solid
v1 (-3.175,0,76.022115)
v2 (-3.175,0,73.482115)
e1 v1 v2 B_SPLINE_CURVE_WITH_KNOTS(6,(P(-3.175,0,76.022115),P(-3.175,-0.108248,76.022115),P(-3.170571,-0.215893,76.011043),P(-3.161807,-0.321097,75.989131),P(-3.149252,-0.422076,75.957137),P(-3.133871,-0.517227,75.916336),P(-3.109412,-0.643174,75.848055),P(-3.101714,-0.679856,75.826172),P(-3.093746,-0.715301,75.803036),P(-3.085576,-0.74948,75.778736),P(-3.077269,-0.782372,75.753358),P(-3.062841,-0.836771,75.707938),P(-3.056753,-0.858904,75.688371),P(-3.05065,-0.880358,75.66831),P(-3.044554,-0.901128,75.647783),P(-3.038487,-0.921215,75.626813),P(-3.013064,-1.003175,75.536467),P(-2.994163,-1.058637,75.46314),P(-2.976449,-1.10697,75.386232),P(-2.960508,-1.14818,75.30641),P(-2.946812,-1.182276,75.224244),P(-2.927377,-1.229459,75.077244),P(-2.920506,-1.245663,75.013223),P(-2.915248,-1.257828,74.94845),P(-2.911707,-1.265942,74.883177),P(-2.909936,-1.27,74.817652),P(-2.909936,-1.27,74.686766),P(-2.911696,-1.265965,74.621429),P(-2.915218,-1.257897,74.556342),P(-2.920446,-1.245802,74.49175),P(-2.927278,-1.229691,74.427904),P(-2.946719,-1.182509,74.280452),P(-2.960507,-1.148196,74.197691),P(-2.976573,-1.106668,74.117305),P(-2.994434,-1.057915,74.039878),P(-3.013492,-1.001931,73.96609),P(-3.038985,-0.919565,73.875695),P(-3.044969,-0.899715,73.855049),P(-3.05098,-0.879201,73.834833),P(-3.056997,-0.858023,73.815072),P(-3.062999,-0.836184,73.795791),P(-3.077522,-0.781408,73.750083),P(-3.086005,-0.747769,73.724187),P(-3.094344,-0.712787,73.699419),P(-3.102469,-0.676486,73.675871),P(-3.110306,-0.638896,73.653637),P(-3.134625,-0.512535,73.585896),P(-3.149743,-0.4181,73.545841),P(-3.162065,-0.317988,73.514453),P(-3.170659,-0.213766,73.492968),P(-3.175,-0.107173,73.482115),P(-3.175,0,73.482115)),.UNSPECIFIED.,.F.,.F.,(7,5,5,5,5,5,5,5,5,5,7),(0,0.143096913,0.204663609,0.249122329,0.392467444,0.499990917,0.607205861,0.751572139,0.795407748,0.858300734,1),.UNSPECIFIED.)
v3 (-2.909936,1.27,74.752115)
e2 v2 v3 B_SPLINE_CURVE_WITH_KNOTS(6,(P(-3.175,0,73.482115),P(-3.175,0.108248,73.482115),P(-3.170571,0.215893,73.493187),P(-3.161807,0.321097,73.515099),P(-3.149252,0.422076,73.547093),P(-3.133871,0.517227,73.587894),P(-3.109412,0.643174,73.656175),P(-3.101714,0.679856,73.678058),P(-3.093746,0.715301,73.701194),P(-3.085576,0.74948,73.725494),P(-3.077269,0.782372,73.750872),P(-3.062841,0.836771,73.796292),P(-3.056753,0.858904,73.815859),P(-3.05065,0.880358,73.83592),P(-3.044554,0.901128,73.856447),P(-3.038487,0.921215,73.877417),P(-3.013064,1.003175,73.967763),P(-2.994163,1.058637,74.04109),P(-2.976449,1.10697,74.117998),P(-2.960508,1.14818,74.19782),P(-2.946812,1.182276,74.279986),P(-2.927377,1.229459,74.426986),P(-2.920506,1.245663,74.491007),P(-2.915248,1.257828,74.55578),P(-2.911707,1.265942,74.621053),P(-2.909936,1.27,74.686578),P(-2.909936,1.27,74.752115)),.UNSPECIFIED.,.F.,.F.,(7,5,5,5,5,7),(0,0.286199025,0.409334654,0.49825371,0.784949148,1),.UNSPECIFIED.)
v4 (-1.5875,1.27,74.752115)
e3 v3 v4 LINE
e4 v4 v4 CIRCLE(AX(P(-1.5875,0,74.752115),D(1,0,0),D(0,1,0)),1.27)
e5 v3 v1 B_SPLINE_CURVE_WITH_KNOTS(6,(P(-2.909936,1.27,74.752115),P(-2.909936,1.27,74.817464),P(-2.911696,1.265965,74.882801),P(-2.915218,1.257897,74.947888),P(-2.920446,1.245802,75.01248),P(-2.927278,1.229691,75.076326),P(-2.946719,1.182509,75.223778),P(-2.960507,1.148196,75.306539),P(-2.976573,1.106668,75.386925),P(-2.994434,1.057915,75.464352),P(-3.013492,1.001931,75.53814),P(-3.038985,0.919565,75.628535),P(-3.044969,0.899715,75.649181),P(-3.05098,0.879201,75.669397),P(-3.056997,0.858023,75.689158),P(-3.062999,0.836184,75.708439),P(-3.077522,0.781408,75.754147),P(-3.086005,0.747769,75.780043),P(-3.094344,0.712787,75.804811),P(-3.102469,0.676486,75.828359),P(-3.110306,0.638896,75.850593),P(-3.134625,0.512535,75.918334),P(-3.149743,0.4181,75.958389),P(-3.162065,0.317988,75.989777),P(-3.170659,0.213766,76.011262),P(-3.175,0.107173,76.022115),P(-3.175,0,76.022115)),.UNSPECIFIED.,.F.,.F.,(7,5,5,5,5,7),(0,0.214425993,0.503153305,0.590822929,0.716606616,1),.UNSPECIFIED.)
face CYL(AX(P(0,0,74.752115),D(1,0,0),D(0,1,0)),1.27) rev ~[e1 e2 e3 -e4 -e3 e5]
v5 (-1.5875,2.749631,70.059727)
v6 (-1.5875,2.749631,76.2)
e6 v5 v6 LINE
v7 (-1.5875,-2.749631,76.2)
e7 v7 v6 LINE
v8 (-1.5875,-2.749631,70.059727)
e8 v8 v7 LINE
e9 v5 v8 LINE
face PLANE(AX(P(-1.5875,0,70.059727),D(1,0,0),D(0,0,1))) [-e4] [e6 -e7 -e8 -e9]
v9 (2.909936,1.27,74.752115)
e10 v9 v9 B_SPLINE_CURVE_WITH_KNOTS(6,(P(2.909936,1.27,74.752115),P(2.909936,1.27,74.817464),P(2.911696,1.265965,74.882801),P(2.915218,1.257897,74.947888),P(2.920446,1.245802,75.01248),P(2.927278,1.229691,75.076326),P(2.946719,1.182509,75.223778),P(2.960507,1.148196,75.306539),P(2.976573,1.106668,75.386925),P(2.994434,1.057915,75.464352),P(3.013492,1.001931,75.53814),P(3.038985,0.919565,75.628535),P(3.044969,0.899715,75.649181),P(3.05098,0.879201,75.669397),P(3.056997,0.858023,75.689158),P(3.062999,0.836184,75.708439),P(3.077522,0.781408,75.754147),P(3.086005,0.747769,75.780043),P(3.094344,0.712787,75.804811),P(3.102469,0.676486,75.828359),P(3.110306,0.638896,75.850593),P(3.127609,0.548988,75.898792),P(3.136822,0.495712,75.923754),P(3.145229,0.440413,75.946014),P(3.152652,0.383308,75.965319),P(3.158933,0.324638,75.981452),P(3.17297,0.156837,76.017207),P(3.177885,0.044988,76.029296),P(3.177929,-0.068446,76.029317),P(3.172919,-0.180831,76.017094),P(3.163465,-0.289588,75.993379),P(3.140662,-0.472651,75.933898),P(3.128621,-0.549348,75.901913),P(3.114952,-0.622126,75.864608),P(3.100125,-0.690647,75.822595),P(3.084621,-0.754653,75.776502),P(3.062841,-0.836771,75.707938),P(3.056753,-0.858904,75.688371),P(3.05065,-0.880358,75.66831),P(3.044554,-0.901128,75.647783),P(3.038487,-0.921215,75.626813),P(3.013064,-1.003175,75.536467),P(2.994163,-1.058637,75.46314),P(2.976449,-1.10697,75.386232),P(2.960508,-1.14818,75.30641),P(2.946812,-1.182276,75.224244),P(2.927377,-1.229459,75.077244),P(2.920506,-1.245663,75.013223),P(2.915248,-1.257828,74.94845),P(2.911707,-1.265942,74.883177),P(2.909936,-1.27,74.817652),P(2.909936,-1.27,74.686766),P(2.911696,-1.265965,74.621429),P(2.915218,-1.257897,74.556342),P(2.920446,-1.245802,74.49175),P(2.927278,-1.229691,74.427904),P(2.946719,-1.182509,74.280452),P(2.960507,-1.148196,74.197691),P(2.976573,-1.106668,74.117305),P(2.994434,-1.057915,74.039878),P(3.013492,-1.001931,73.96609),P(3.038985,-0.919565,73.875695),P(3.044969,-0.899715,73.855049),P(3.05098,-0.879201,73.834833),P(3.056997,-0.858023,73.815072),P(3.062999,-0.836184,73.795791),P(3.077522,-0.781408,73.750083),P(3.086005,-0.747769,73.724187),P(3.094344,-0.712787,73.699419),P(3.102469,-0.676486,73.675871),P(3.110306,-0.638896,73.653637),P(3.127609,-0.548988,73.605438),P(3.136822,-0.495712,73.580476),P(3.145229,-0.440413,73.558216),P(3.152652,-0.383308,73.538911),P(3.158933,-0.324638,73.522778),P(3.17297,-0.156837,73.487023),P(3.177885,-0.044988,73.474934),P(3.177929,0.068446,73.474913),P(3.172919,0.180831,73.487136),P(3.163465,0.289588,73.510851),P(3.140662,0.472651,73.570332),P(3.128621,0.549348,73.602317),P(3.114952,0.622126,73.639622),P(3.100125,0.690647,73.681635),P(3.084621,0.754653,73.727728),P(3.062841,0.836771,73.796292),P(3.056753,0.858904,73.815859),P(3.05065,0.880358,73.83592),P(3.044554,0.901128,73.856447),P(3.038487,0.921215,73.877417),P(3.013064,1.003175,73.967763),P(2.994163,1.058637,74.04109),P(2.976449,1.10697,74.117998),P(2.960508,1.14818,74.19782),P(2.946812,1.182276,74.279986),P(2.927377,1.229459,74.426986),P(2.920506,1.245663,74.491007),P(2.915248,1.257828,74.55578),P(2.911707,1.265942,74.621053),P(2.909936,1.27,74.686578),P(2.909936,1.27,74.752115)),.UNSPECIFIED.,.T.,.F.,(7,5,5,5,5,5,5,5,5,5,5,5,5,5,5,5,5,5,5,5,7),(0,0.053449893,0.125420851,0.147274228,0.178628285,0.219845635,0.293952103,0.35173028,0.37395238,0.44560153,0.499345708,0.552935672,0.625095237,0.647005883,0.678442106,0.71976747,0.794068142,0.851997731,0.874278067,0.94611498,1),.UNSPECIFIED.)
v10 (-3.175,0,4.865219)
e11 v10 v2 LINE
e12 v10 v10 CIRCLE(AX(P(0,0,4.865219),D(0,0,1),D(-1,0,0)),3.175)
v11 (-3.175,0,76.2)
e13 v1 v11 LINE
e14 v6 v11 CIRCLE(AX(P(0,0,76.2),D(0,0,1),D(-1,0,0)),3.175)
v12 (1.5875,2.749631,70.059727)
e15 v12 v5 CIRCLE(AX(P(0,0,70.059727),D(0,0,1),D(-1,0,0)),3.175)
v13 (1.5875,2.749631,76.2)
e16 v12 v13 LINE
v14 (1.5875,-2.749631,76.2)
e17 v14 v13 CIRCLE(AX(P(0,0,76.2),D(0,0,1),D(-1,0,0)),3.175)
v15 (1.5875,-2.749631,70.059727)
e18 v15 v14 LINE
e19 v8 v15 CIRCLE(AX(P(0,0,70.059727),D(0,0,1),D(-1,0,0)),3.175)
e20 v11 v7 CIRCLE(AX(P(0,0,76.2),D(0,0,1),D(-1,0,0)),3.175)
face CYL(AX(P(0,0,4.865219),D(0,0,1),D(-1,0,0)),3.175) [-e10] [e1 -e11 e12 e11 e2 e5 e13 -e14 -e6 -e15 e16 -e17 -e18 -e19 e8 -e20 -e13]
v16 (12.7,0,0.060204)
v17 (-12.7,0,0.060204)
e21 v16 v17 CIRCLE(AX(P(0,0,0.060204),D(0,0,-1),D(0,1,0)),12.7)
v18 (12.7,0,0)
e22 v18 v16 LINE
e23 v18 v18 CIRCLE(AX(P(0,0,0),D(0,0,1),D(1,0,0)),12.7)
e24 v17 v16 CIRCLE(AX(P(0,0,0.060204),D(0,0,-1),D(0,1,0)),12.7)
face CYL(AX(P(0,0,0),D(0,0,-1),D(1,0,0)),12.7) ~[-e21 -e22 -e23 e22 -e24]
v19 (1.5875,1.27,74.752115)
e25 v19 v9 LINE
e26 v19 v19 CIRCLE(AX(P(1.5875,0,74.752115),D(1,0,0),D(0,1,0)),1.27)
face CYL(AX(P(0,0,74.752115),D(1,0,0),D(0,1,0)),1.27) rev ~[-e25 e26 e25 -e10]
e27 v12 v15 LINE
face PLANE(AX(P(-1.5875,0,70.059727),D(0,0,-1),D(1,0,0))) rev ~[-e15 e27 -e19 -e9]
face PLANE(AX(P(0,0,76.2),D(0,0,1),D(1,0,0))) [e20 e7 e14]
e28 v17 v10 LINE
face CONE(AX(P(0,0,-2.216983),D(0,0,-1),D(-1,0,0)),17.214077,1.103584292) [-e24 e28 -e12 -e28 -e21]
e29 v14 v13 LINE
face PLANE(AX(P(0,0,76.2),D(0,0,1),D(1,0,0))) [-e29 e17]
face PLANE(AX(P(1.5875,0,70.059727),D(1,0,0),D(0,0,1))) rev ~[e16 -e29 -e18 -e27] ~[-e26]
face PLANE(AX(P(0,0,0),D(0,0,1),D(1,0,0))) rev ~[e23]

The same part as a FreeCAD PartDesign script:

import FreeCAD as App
import Part
import Sketcher
Q = App.Units.Quantity


def add_polygon(sketch, points):
    """Adds a closed chain of lines whose ends are joined by coincident constraints."""
    first, n = sketch.GeometryCount, len(points)
    for a, b in zip(points, points[1:] + points[:1]):
        sketch.addGeometry(Part.LineSegment(App.Vector(*a, 0), App.Vector(*b, 0)), False)
    for i in range(n):
        sketch.addConstraint(Sketcher.Constraint("Coincident", first + i, 2, first + (i + 1) % n, 1))

doc = App.newDocument("Part")
body = doc.addObject("PartDesign::Body", "Body")

# Sketch on XY plane
sketch1 = body.newObject("Sketcher::SketchObject", "Sketch")
sketch1.AttachmentSupport = (doc.getObject("XY_Plane"), [""])
sketch1.MapMode = "FlatFace"
sketch1.addGeometry(Part.Circle(App.Vector(0, 0, 0), App.Vector(0, 0, 1), 13), False)
sketch1.addConstraint([
    Sketcher.Constraint("Coincident", 0, 3, -1, 1),
    Sketcher.Constraint("Diameter", 0, Q("1 in")),
])
pad1 = body.newObject("PartDesign::Pad", "Pad")
pad1.Profile = sketch1
pad1.Length = Q("3 in")

# Sketch on XZ plane
sketch2 = body.newObject("Sketcher::SketchObject", "Sketch001")
sketch2.AttachmentSupport = (doc.getObject("XZ_Plane"), [""])
sketch2.MapMode = "FlatFace"
add_polygon(sketch2, [(-17, -2), (-3, 5), (-3, 84), (-17, 84)])  # lines 0-3
sketch2.addConstraint([
    Sketcher.Constraint("Vertical", 1),
    Sketcher.Constraint("Horizontal", 2),
    Sketcher.Constraint("Vertical", 3),
    Sketcher.Constraint("DistanceX", 0, 2, -1, 1, Q("0.125 in")),
    Sketcher.Constraint("DistanceY", 1, 1, 1, 2, Q("78.88786 mm")),
    Sketcher.Constraint("DistanceY", 3, 2, 3, 1, Q("85.970062 mm")),
    Sketcher.Constraint("Distance", 0, Q("15.724289 mm")),
    Sketcher.Constraint("DistanceY", -1, 1, 0, 2, Q("4.865219 mm")),
])
groove = body.newObject("PartDesign::Groove", "Groove")
groove.Profile = sketch2
groove.ReferenceAxis = (sketch2, ["V_Axis"])
groove.Angle = 360

# Sketch on XZ plane
sketch3 = body.newObject("Sketcher::SketchObject", "Sketch002")
sketch3.AttachmentSupport = (doc.getObject("XZ_Plane"), [""])
sketch3.MapMode = "FlatFace"
add_polygon(sketch3, [(-1.6, 82.8), (-1.6, 70.1), (1.6, 70.1), (1.6, 82.8)])  # lines 0-3
sketch3.addConstraint([
    Sketcher.Constraint("Vertical", 0),
    Sketcher.Constraint("Horizontal", 1),
    Sketcher.Constraint("Vertical", 2),
    Sketcher.Constraint("Horizontal", 3),
    Sketcher.Constraint("DistanceY", 0, 2, 0, 1, Q("0.5 in")),
    Sketcher.Constraint("DistanceX", 1, 1, 1, 2, Q("0.125 in")),
    Sketcher.Constraint("DistanceX", 0, 2, -1, 1, Q("0.0625 in")),
    Sketcher.Constraint("DistanceY", -1, 1, 0, 2, Q("70.059727 mm")),
])
pocket1 = body.newObject("PartDesign::Pocket", "Pocket")
pocket1.Profile = sketch3
pocket1.Length = Q("1 in")
pocket1.Midplane = True

# Sketch on YZ plane
sketch4 = body.newObject("Sketcher::SketchObject", "Sketch003")
sketch4.AttachmentSupport = (doc.getObject("YZ_Plane"), [""])
sketch4.MapMode = "FlatFace"
sketch4.addGeometry(Part.Circle(App.Vector(0, 74.8, 0), App.Vector(0, 0, 1), 1.3), False)
sketch4.addConstraint([
    Sketcher.Constraint("PointOnObject", 0, 3, -2),
    Sketcher.Constraint("Diameter", 0, Q("0.1 in")),
    Sketcher.Constraint("DistanceY", -1, 1, 0, 3, Q("74.752115 mm")),
])
pocket2 = body.newObject("PartDesign::Pocket", "Pocket001")
pocket2.Profile = sketch4
pocket2.Length = Q("1 in")
pocket2.Midplane = True

doc.recompute()
